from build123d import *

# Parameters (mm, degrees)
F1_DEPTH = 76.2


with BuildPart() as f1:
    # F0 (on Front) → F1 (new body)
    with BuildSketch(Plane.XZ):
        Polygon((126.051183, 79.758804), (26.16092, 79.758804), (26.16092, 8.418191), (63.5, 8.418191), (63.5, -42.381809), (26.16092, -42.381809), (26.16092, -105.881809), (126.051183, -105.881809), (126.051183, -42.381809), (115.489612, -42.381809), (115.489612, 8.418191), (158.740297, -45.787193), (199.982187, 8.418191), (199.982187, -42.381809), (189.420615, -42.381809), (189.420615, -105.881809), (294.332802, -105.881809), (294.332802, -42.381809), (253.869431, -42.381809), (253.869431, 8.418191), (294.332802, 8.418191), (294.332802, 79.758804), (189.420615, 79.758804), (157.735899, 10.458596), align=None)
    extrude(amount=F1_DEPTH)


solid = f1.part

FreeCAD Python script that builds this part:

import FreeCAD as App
import Part
import Sketcher

V = App.Vector
Q = App.Units.Quantity

doc = App.newDocument("Part")
body = doc.addObject("PartDesign::Body", "Body")

sketch1 = body.newObject("Sketcher::SketchObject", "Sketch")
sketch1.AttachmentSupport = (doc.getObject("XZ_Plane"), [""])
sketch1.MapMode = "FlatFace"
sketch1.addGeometry(Part.LineSegment(V(126, 80, 0), V(26, 80, 0)), False)
sketch1.addGeometry(Part.LineSegment(V(26, 80, 0), V(26, 8, 0)), False)
sketch1.addGeometry(Part.LineSegment(V(26, 8, 0), V(64, 8, 0)), False)
sketch1.addGeometry(Part.LineSegment(V(64, 8, 0), V(64, -42, 0)), False)
sketch1.addGeometry(Part.LineSegment(V(64, -42, 0), V(26, -42, 0)), False)
sketch1.addGeometry(Part.LineSegment(V(26, -42, 0), V(26, -106, 0)), False)
sketch1.addGeometry(Part.LineSegment(V(26, -106, 0), V(126, -106, 0)), False)
sketch1.addGeometry(Part.LineSegment(V(126, -106, 0), V(126, -42, 0)), False)
sketch1.addGeometry(Part.LineSegment(V(126, -42, 0), V(115, -42, 0)), False)
sketch1.addGeometry(Part.LineSegment(V(115, -42, 0), V(115, 8, 0)), False)
sketch1.addGeometry(Part.LineSegment(V(115, 8, 0), V(159, -46, 0)), False)
sketch1.addGeometry(Part.LineSegment(V(159, -46, 0), V(200, 8, 0)), False)
sketch1.addGeometry(Part.LineSegment(V(200, 8, 0), V(200, -42, 0)), False)
sketch1.addGeometry(Part.LineSegment(V(200, -42, 0), V(189, -42, 0)), False)
sketch1.addGeometry(Part.LineSegment(V(189, -42, 0), V(189, -106, 0)), False)
sketch1.addGeometry(Part.LineSegment(V(189, -106, 0), V(294, -106, 0)), False)
sketch1.addGeometry(Part.LineSegment(V(294, -106, 0), V(294, -42, 0)), False)
sketch1.addGeometry(Part.LineSegment(V(294, -42, 0), V(254, -42, 0)), False)
sketch1.addGeometry(Part.LineSegment(V(254, -42, 0), V(254, 8, 0)), False)
sketch1.addGeometry(Part.LineSegment(V(254, 8, 0), V(294, 8, 0)), False)
sketch1.addGeometry(Part.LineSegment(V(294, 8, 0), V(294, 80, 0)), False)
sketch1.addGeometry(Part.LineSegment(V(294, 80, 0), V(189, 80, 0)), False)
sketch1.addGeometry(Part.LineSegment(V(189, 80, 0), V(158, 10, 0)), False)
sketch1.addGeometry(Part.LineSegment(V(158, 10, 0), V(126, 80, 0)), False)
sketch1.addConstraint(Sketcher.Constraint("Coincident", 0, 2, 1, 1))
sketch1.addConstraint(Sketcher.Constraint("Coincident", 1, 2, 2, 1))
sketch1.addConstraint(Sketcher.Constraint("Coincident", 2, 2, 3, 1))
sketch1.addConstraint(Sketcher.Constraint("Coincident", 3, 2, 4, 1))
sketch1.addConstraint(Sketcher.Constraint("Coincident", 4, 2, 5, 1))
sketch1.addConstraint(Sketcher.Constraint("Coincident", 5, 2, 6, 1))
sketch1.addConstraint(Sketcher.Constraint("Coincident", 6, 2, 7, 1))
sketch1.addConstraint(Sketcher.Constraint("Coincident", 7, 2, 8, 1))
sketch1.addConstraint(Sketcher.Constraint("Coincident", 8, 2, 9, 1))
sketch1.addConstraint(Sketcher.Constraint("Coincident", 9, 2, 10, 1))
sketch1.addConstraint(Sketcher.Constraint("Coincident", 10, 2, 11, 1))
sketch1.addConstraint(Sketcher.Constraint("Coincident", 11, 2, 12, 1))
sketch1.addConstraint(Sketcher.Constraint("Coincident", 12, 2, 13, 1))
sketch1.addConstraint(Sketcher.Constraint("Coincident", 13, 2, 14, 1))
sketch1.addConstraint(Sketcher.Constraint("Coincident", 14, 2, 15, 1))
sketch1.addConstraint(Sketcher.Constraint("Coincident", 15, 2, 16, 1))
sketch1.addConstraint(Sketcher.Constraint("Coincident", 16, 2, 17, 1))
sketch1.addConstraint(Sketcher.Constraint("Coincident", 17, 2, 18, 1))
sketch1.addConstraint(Sketcher.Constraint("Coincident", 18, 2, 19, 1))
sketch1.addConstraint(Sketcher.Constraint("Coincident", 19, 2, 20, 1))
sketch1.addConstraint(Sketcher.Constraint("Coincident", 20, 2, 21, 1))
sketch1.addConstraint(Sketcher.Constraint("Coincident", 21, 2, 22, 1))
sketch1.addConstraint(Sketcher.Constraint("Coincident", 22, 2, 23, 1))
sketch1.addConstraint(Sketcher.Constraint("Coincident", 23, 2, 0, 1))
sketch1.addConstraint(Sketcher.Constraint("Horizontal", 0))
sketch1.addConstraint(Sketcher.Constraint("Vertical", 1))
sketch1.addConstraint(Sketcher.Constraint("Horizontal", 2))
sketch1.addConstraint(Sketcher.Constraint("Vertical", 3))
sketch1.addConstraint(Sketcher.Constraint("Horizontal", 4))
sketch1.addConstraint(Sketcher.Constraint("Vertical", 5))
sketch1.addConstraint(Sketcher.Constraint("Horizontal", 6))
sketch1.addConstraint(Sketcher.Constraint("Vertical", 7))
sketch1.addConstraint(Sketcher.Constraint("Horizontal", 8))
sketch1.addConstraint(Sketcher.Constraint("Vertical", 9))
sketch1.addConstraint(Sketcher.Constraint("Vertical", 12))
sketch1.addConstraint(Sketcher.Constraint("Horizontal", 13))
sketch1.addConstraint(Sketcher.Constraint("Vertical", 14))
sketch1.addConstraint(Sketcher.Constraint("Horizontal", 15))
sketch1.addConstraint(Sketcher.Constraint("Vertical", 16))
sketch1.addConstraint(Sketcher.Constraint("Horizontal", 17))
sketch1.addConstraint(Sketcher.Constraint("Vertical", 18))
sketch1.addConstraint(Sketcher.Constraint("Horizontal", 19))
sketch1.addConstraint(Sketcher.Constraint("Vertical", 20))
sketch1.addConstraint(Sketcher.Constraint("Horizontal", 21))
sketch1.addConstraint(Sketcher.Constraint("Horizontal", 4, 2, 7, 2))
sketch1.addConstraint(Sketcher.Constraint("Horizontal", 2, 2, 9, 2))
sketch1.addConstraint(Sketcher.Constraint("Horizontal", 9, 2, 11, 2))
sketch1.addConstraint(Sketcher.Constraint("Horizontal", 8, 2, 12, 2))
sketch1.addConstraint(Sketcher.Constraint("Horizontal", 6, 2, 14, 2))
sketch1.addConstraint(Sketcher.Constraint("Horizontal", 13, 2, 16, 2))
sketch1.addConstraint(Sketcher.Constraint("Horizontal", 11, 2, 18, 2))
sketch1.addConstraint(Sketcher.Constraint("Horizontal", 0, 2, 20, 2))
sketch1.addConstraint(Sketcher.Constraint("Vertical", 1, 2, 4, 2))
sketch1.addConstraint(Sketcher.Constraint("Vertical", 16, 2, 19, 2))
sketch1.addConstraint(Sketcher.Constraint("Vertical", 14, 2, 21, 2))
sketch1.addConstraint(Sketcher.Constraint("Vertical", 7, 2, 23, 2))
sketch1.addConstraint(Sketcher.Constraint("Equal", 8, 13))
sketch1.addConstraint(Sketcher.Constraint("Equal", 22, 23))
sketch1.addConstraint(Sketcher.Constraint("DistanceY", 3, 2, 3, 1, Q("2 in")))
sketch1.addConstraint(Sketcher.Constraint("Distance", 22, Q("3 in")))
sketch1.addConstraint(Sketcher.Constraint("DistanceY", 5, 2, 5, 1, Q("2.5 in")))
sketch1.addConstraint(Sketcher.Constraint("DistanceX", -1, 1, 2, 2, Q("2.5 in")))
sketch1.addConstraint(Sketcher.Constraint("DistanceX", 2, 1, 2, 2, Q("37.33908 mm")))
sketch1.addConstraint(Sketcher.Constraint("DistanceX", 8, 2, 8, 1, Q("10.561571 mm")))
sketch1.addConstraint(Sketcher.Constraint("DistanceX", 17, 2, 17, 1, Q("40.463371 mm")))
sketch1.addConstraint(Sketcher.Constraint("DistanceX", -1, 1, 15, 2, Q("294.332802 mm")))
sketch1.addConstraint(Sketcher.Constraint("DistanceX", -1, 1, 22, 2, Q("157.735899 mm")))
sketch1.addConstraint(Sketcher.Constraint("DistanceX", 22, 2, 10, 2, Q("1.004398 mm")))
sketch1.addConstraint(Sketcher.Constraint("Distance", 10, Q("69.345839 mm")))
sketch1.addConstraint(Sketcher.Constraint("DistanceX", 0, 2, 0, 1, Q("99.890263 mm")))
sketch1.addConstraint(Sketcher.Constraint("DistanceY", 1, 2, 1, 1, Q("71.340613 mm")))
sketch1.addConstraint(Sketcher.Constraint("DistanceY", -1, 1, 1, 2, Q("8.418191 mm")))
pad1 = body.newObject("PartDesign::Pad", "Pad")
pad1.Profile = sketch1
pad1.Length = Q("3 in")

doc.recompute()
